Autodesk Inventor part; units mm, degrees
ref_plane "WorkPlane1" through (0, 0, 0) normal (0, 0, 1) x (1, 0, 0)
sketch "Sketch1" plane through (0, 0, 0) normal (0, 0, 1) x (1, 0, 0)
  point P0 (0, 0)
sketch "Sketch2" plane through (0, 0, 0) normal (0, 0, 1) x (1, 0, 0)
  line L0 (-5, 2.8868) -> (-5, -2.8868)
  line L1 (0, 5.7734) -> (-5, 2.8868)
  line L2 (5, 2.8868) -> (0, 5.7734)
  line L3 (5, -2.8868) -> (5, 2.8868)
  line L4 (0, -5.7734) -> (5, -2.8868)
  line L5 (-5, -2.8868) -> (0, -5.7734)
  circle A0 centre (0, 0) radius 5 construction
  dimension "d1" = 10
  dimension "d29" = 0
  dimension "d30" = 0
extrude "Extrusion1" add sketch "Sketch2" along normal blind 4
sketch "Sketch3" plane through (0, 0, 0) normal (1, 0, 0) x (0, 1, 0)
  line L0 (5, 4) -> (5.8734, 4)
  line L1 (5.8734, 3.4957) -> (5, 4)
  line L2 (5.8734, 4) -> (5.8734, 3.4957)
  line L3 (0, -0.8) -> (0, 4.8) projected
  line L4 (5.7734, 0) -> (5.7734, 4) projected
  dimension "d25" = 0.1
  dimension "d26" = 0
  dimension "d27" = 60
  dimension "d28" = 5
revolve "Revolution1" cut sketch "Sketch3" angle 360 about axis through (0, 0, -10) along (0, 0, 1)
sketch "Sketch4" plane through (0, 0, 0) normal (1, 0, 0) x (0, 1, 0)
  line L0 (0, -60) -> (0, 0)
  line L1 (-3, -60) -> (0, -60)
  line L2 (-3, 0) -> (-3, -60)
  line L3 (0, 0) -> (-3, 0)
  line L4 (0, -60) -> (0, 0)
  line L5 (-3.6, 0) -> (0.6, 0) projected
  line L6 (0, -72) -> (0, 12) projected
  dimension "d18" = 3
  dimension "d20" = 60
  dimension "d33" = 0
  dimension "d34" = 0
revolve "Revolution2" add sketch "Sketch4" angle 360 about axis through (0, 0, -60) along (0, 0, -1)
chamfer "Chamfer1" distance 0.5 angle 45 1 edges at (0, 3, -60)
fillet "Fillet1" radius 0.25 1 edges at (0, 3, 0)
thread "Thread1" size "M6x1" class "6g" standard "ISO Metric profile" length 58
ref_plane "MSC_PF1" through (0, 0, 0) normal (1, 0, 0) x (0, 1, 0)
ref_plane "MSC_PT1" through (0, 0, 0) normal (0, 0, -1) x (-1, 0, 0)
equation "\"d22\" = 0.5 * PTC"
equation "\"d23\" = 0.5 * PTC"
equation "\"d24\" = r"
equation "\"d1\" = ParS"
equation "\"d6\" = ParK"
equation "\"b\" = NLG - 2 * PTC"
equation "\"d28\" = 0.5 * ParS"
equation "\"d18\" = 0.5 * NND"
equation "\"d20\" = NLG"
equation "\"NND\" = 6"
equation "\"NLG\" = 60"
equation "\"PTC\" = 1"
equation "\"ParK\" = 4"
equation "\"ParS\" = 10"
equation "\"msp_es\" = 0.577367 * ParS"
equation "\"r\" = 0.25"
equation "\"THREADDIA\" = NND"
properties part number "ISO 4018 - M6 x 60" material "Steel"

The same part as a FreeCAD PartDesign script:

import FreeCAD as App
import Part
import Sketcher

V = App.Vector
Q = App.Units.Quantity


def edges_at(feature, points):
    """Names of the edges that pass closest to the given points."""
    edges = feature.Shape.Edges
    near = lambda p: min(range(len(edges)), key=lambda i: edges[i].distToShape(Part.Vertex(*p))[0])
    return sorted({f"Edge{near(p) + 1}" for p in points})


def add_polygon(sketch, points):
    """Adds a closed chain of lines whose ends are joined by coincident constraints."""
    first, n = sketch.GeometryCount, len(points)
    for a, b in zip(points, points[1:] + points[:1]):
        sketch.addGeometry(Part.LineSegment(App.Vector(*a, 0), App.Vector(*b, 0)), False)
    for i in range(n):
        sketch.addConstraint(Sketcher.Constraint("Coincident", first + i, 2, first + (i + 1) % n, 1))

doc = App.newDocument("Part")
body = doc.addObject("PartDesign::Body", "Body")

sketch1 = body.newObject("Sketcher::SketchObject", "Sketch")
sketch1.AttachmentSupport = (doc.getObject("XY_Plane"), [""])
sketch1.MapMode = "FlatFace"
add_polygon(sketch1, [(0, 5.7734), (-5, 2.8868), (-5, -2.8868), (0, -5.7734), (5, -2.8868), (5, 2.8868)])
sketch1.addConstraint(Sketcher.Constraint("Vertical", 1))
sketch1.addConstraint(Sketcher.Constraint("Vertical", 4))
sketch1.addConstraint(Sketcher.Constraint("Symmetric", 0, 2, 3, 2, -1, 1))
sketch1.addConstraint(Sketcher.Constraint("Symmetric", 2, 2, 5, 2, -1, 1))
sketch1.addConstraint(Sketcher.Constraint("PointOnObject", 2, 2, -2))
sketch1.addConstraint(Sketcher.Constraint("Parallel", 2, 5))
sketch1.addConstraint(Sketcher.Constraint("Horizontal", 1, 2, 3, 2))
sketch1.addConstraint(Sketcher.Constraint("DistanceX", 1, 2, 3, 2, Q("10 mm")))
sketch1.addConstraint(Sketcher.Constraint("DistanceY", 1, 2, 1, 1, Q("5.7736 mm")))
sketch1.addConstraint(Sketcher.Constraint("Distance", 0, Q("5.7734 mm")))
pad1 = body.newObject("PartDesign::Pad", "Pad")
pad1.Profile = sketch1
pad1.Length = 4

sketch2 = body.newObject("Sketcher::SketchObject", "Sketch001")
sketch2.AttachmentSupport = (doc.getObject("YZ_Plane"), [""])
sketch2.MapMode = "FlatFace"
add_polygon(sketch2, [(5, 4), (5.8734, 3.4957), (5.8734, 4)])
sketch2.addConstraint(Sketcher.Constraint("Vertical", 1))
sketch2.addConstraint(Sketcher.Constraint("Horizontal", 2))
sketch2.addConstraint(Sketcher.Constraint("DistanceX", -1, 1, 2, 2, Q("5 mm")))
sketch2.addConstraint(Sketcher.Constraint("DistanceY", -1, 1, 1, 2, Q("4 mm")))
sketch2.addConstraint(Sketcher.Constraint("DistanceX", 2, 2, 2, 1, Q("0.8734 mm")))
sketch2.addConstraint(Sketcher.Constraint("DistanceY", 1, 1, 1, 2, Q("0.5043 mm")))
groove = body.newObject("PartDesign::Groove", "Groove")
groove.Profile = sketch2
groove.ReferenceAxis = (sketch2, ["V_Axis"])
groove.Angle = 360

sketch3 = body.newObject("Sketcher::SketchObject", "Sketch002")
sketch3.AttachmentSupport = (doc.getObject("YZ_Plane"), [""])
sketch3.MapMode = "FlatFace"
add_polygon(sketch3, [(-3, -60), (0, -60), (0, 0), (-3, 0)])
sketch3.addConstraint(Sketcher.Constraint("Horizontal", 0))
sketch3.addConstraint(Sketcher.Constraint("Vertical", 1))
sketch3.addConstraint(Sketcher.Constraint("Horizontal", 2))
sketch3.addConstraint(Sketcher.Constraint("Vertical", 3))
sketch3.addConstraint(Sketcher.Constraint("Coincident", 1, 2, -1, 1))
sketch3.addConstraint(Sketcher.Constraint("DistanceX", 0, 1, 0, 2, Q("3 mm")))
sketch3.addConstraint(Sketcher.Constraint("DistanceY", 1, 1, 1, 2, Q("60 mm")))
revolution = body.newObject("PartDesign::Revolution", "Revolution")
revolution.Profile = sketch3
revolution.ReferenceAxis = (sketch3, ["V_Axis"])
revolution.Angle = 360
doc.recompute()

chamfer = body.newObject("PartDesign::Chamfer", "Chamfer")
chamfer.Base = (revolution, edges_at(revolution, [(0, 3, -60)]))
chamfer.Size = 0.5
doc.recompute()

fillet = body.newObject("PartDesign::Fillet", "Fillet")
fillet.Base = (chamfer, edges_at(chamfer, [(0, 3, 0)]))
fillet.Radius = 0.25

doc.recompute()
